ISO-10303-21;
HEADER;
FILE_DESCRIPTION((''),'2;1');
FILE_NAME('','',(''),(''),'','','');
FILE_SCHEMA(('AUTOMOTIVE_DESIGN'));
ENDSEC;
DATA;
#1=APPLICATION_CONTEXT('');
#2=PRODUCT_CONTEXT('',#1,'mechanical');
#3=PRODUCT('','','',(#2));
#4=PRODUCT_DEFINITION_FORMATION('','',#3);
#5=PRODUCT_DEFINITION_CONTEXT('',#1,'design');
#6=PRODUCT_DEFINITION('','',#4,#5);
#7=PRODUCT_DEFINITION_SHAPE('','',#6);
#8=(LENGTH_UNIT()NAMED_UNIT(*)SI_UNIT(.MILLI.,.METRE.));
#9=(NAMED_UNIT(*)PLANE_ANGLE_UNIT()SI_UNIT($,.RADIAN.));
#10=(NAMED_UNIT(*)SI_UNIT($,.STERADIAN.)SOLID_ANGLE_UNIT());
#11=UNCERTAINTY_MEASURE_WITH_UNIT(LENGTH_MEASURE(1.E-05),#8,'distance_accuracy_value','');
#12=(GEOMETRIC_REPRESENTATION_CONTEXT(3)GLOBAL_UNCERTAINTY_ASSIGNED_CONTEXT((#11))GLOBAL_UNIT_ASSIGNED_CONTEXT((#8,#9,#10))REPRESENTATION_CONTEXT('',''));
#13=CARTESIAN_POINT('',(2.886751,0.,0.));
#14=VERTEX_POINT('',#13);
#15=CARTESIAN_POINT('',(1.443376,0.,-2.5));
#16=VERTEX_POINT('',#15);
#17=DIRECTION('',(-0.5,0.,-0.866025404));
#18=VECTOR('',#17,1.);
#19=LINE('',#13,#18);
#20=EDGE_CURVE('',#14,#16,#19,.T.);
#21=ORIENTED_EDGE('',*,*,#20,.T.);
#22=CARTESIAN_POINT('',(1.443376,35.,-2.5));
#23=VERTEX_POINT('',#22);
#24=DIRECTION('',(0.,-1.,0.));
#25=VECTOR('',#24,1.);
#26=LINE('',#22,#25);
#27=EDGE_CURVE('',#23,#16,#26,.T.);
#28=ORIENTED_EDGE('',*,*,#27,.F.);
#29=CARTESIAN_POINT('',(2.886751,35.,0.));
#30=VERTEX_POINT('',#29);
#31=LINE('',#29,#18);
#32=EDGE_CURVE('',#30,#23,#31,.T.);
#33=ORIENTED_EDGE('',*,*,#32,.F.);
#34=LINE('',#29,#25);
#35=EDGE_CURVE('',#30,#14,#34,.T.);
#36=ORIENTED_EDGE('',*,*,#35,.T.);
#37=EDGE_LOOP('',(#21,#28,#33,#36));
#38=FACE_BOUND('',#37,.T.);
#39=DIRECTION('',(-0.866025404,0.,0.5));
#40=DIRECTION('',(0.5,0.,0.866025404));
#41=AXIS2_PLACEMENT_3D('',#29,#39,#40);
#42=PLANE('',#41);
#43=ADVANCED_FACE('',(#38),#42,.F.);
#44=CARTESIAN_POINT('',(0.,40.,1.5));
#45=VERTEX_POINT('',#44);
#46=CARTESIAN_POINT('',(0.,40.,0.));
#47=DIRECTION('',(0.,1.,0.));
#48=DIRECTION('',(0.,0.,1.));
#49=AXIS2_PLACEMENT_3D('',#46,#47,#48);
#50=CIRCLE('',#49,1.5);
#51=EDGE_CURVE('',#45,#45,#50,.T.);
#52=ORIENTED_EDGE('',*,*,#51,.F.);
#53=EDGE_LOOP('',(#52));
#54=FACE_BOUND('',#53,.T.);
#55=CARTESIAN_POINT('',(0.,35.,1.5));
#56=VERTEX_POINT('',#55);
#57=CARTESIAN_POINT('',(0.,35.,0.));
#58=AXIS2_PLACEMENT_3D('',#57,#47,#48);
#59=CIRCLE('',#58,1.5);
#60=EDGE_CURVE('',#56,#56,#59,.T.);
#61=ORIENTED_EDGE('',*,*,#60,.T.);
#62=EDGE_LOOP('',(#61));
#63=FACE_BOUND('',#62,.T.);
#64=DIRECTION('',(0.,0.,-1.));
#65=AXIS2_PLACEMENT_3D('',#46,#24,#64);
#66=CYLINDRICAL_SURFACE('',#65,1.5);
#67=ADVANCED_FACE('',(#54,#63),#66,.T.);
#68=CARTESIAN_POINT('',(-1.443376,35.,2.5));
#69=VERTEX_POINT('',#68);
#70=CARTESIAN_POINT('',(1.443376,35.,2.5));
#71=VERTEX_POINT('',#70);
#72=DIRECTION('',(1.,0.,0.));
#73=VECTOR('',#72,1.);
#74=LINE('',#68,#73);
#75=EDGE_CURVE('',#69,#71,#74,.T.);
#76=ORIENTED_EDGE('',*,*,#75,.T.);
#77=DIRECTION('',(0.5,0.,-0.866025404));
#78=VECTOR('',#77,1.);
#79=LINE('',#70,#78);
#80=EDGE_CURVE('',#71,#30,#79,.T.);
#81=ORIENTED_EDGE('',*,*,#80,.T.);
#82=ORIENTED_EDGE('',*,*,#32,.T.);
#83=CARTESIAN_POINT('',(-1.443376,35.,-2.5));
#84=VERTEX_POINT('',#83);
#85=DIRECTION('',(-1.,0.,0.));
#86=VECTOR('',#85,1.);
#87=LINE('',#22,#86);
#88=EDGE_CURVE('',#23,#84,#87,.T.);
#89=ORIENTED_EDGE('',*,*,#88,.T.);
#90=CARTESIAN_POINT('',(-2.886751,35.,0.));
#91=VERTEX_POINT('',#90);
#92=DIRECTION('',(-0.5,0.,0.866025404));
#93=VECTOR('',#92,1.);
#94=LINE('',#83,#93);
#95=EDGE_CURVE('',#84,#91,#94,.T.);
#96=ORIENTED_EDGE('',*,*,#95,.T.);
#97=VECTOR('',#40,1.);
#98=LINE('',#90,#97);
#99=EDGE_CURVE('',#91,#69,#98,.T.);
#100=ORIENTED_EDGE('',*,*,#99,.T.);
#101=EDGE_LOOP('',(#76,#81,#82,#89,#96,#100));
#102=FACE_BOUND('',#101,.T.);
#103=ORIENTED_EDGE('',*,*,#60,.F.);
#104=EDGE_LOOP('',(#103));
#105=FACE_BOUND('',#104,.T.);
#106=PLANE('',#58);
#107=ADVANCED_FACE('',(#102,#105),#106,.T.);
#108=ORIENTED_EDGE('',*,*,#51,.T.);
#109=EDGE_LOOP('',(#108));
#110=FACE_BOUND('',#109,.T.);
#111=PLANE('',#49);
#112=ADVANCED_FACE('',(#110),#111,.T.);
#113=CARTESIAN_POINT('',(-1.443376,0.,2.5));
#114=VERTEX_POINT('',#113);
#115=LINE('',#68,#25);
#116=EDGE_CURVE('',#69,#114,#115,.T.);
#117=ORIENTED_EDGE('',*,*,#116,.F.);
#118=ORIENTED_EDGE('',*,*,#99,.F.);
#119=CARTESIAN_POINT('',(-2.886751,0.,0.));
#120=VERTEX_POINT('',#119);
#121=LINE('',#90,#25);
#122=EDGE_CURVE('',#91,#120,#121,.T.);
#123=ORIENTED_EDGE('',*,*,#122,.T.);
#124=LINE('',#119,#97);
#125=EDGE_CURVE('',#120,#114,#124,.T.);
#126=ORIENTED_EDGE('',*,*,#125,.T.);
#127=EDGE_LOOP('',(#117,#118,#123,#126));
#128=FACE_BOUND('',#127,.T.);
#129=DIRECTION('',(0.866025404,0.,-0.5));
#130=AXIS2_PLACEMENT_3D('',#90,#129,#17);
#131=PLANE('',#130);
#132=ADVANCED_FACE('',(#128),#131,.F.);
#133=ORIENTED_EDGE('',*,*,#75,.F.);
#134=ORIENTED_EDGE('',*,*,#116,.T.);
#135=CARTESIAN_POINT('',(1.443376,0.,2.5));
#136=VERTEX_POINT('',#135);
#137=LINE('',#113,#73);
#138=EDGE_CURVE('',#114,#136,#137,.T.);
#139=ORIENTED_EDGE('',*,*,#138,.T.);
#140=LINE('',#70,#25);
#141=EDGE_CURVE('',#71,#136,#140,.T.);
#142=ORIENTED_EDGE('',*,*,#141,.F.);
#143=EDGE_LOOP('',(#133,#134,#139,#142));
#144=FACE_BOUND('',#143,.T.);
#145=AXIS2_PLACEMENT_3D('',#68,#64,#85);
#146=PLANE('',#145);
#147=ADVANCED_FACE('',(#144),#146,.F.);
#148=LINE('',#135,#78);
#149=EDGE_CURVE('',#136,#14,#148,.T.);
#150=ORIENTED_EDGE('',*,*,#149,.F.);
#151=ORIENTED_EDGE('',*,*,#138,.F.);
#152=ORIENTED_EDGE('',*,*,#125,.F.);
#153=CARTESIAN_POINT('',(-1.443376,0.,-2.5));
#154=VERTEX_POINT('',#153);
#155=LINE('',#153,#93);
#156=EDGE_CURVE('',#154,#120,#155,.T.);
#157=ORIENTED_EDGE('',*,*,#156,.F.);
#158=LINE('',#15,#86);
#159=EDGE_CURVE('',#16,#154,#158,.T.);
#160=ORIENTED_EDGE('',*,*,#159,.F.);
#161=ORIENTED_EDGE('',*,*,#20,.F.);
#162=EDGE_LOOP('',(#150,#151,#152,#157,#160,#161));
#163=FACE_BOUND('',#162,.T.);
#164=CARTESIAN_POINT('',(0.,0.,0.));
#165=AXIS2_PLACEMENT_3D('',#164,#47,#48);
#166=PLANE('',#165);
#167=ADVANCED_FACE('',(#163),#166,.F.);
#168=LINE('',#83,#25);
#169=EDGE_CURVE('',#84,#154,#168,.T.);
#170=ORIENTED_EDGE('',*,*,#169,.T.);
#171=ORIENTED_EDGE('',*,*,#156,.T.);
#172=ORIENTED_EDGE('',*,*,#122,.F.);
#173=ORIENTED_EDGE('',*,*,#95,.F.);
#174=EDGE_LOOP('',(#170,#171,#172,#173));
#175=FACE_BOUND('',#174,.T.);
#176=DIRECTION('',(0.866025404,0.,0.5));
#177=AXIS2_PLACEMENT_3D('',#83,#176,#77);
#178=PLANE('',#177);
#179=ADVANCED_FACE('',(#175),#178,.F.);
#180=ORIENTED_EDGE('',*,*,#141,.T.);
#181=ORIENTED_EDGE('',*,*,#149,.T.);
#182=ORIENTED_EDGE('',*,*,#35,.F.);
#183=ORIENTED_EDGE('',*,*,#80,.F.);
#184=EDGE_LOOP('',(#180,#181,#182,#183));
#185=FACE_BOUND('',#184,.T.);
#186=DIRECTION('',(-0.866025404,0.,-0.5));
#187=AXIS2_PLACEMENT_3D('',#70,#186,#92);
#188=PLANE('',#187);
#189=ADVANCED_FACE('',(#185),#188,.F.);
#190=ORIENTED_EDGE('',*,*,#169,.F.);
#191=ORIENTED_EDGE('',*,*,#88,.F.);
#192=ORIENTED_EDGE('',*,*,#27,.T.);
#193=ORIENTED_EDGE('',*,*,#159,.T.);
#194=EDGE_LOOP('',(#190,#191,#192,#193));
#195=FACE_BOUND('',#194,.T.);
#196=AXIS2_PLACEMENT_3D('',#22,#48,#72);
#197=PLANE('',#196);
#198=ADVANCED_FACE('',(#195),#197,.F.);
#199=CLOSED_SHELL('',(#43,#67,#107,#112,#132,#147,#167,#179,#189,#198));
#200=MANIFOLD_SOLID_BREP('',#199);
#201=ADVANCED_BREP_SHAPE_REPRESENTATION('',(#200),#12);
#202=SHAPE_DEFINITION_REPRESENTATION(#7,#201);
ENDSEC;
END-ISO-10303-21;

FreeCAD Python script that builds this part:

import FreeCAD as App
import Part
import Sketcher
Q = App.Units.Quantity


def add_polygon(sketch, points):
    """Adds a closed chain of lines whose ends are joined by coincident constraints."""
    first, n = sketch.GeometryCount, len(points)
    for a, b in zip(points, points[1:] + points[:1]):
        sketch.addGeometry(Part.LineSegment(App.Vector(*a, 0), App.Vector(*b, 0)), False)
    for i in range(n):
        sketch.addConstraint(Sketcher.Constraint("Coincident", first + i, 2, first + (i + 1) % n, 1))

doc = App.newDocument("Part")
body = doc.addObject("PartDesign::Body", "Body")

# Sketch on XZ plane
sketch1 = doc.addObject("Sketcher::SketchObject", "Sketch")
body.addObject(sketch1)
sketch1.AttachmentSupport = (doc.XZ_Plane, [""])
sketch1.MapMode = "FlatFace"
add_polygon(sketch1, [(2.9, 0), (1.4, -2.5), (-1.4, -2.5), (-2.9, 0), (-1.4, 2.5), (1.4, 2.5)])  # lines 0-5
sketch1.addConstraint(Sketcher.Constraint("Horizontal", 1))
sketch1.addConstraint(Sketcher.Constraint("Horizontal", 4))
sketch1.addConstraint(Sketcher.Constraint("Symmetric", 0, 2, 3, 2, -1, 1))
sketch1.addConstraint(Sketcher.Constraint("Symmetric", 2, 2, 5, 2, -1, 1))
sketch1.addConstraint(Sketcher.Constraint("PointOnObject", 2, 2, -1))
sketch1.addConstraint(Sketcher.Constraint("Parallel", 2, 5))
sketch1.addConstraint(Sketcher.Constraint("Vertical", 1, 2, 3, 2))
sketch1.addConstraint(Sketcher.Constraint("Angle", 0, Q("-120 deg")))
sketch1.addConstraint(Sketcher.Constraint("DistanceY", 1, 2, 3, 2, Q("5 mm")))
sketch1.addConstraint(Sketcher.Constraint("DistanceX", 1, 2, 1, 1, Q("2.886751 mm")))
pad1 = doc.addObject("PartDesign::Pad", "Pad")
body.addObject(pad1)
pad1.Profile = sketch1
pad1.Length = 35
pad1.Reversed = True

# Sketch on XZ plane
sketch2 = doc.addObject("Sketcher::SketchObject", "Sketch001")
body.addObject(sketch2)
sketch2.AttachmentSupport = (doc.XZ_Plane, [""])
sketch2.MapMode = "FlatFace"
sketch2.AttachmentOffset = App.Placement(App.Vector(0, 0, -35), App.Rotation())
sketch2.addGeometry(Part.Circle(App.Vector(0, 0, 0), App.Vector(0, 0, 1), 1.5), False)
sketch2.addConstraint(Sketcher.Constraint("Coincident", 0, 3, -1, 1))
sketch2.addConstraint(Sketcher.Constraint("Diameter", 0, Q("3 mm")))
pad2 = doc.addObject("PartDesign::Pad", "Pad001")
body.addObject(pad2)
pad2.Profile = sketch2
pad2.Length = 5
pad2.Reversed = True

doc.recompute()
